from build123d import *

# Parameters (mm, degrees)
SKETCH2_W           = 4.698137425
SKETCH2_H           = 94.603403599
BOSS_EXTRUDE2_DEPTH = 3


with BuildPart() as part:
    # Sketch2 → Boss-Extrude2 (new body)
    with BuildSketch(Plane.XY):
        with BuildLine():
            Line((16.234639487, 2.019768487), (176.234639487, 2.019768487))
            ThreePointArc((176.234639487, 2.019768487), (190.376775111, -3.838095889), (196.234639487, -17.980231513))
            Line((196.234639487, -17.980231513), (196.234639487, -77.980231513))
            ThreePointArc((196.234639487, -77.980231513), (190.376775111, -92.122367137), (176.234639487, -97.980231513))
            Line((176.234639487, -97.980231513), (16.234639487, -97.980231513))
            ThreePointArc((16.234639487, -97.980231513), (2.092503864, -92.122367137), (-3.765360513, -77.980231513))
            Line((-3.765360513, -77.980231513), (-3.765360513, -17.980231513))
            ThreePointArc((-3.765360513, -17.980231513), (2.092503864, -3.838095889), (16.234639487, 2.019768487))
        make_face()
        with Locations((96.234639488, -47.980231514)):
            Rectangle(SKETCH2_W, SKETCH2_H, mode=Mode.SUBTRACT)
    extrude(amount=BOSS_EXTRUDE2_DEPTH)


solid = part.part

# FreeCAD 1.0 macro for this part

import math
import FreeCAD as App
import Part
import Sketcher

V = App.Vector
Q = App.Units.Quantity

doc = App.newDocument("Part")
body = doc.addObject("PartDesign::Body", "Body")

sketch1 = body.newObject("Sketcher::SketchObject", "Sketch")
sketch1.AttachmentSupport = (doc.getObject("XY_Plane"), [""])
sketch1.MapMode = "FlatFace"
sketch1.addGeometry([
    Part.LineSegment(V(176.234639, 2.019768, 0), V(16.234639, 2.019768, 0)),
    Part.ArcOfCircle(Part.Circle(V(16.234639, -17.980232, 0), V(0, 0, 1), 20), math.radians(90), math.radians(180)),
    Part.LineSegment(V(-3.765361, -17.980232, 0), V(-3.765361, -77.980232, 0)),
    Part.ArcOfCircle(Part.Circle(V(16.234639, -77.980232, 0), V(0, 0, 1), 20), math.radians(-180), math.radians(-90)),
    Part.LineSegment(V(16.234639, -97.980232, 0), V(176.234639, -97.980232, 0)),
    Part.ArcOfCircle(Part.Circle(V(176.234639, -77.980232, 0), V(0, 0, 1), 20), math.radians(-90), math.radians(0)),
    Part.LineSegment(V(196.234639, -77.980232, 0), V(196.234639, -17.980232, 0)),
    Part.ArcOfCircle(Part.Circle(V(176.234639, -17.980232, 0), V(0, 0, 1), 20), math.radians(0), math.radians(90)),
    Part.LineSegment(V(93.885571, -95.281933, 0), V(93.885571, -0.67853, 0)),
    Part.LineSegment(V(93.885571, -0.67853, 0), V(98.583708, -0.67853, 0)),
    Part.LineSegment(V(98.583708, -0.67853, 0), V(98.583708, -95.281933, 0)),
    Part.LineSegment(V(98.583708, -95.281933, 0), V(93.885571, -95.281933, 0)),
], False)
sketch1.addConstraint([
    Sketcher.Constraint("Tangent", 0, 2, 1, 1),
    Sketcher.Constraint("Tangent", 1, 2, 2, 1),
    Sketcher.Constraint("Tangent", 2, 2, 3, 1),
    Sketcher.Constraint("Tangent", 3, 2, 4, 1),
    Sketcher.Constraint("Tangent", 4, 2, 5, 1),
    Sketcher.Constraint("Tangent", 5, 2, 6, 1),
    Sketcher.Constraint("Tangent", 6, 2, 7, 1),
    Sketcher.Constraint("Tangent", 7, 2, 0, 1),
    Sketcher.Constraint("Coincident", 8, 2, 9, 1),
    Sketcher.Constraint("Coincident", 9, 2, 10, 1),
    Sketcher.Constraint("Coincident", 10, 2, 11, 1),
    Sketcher.Constraint("Coincident", 11, 2, 8, 1),
    Sketcher.Constraint("Horizontal", 0),
    Sketcher.Constraint("Vertical", 2),
    Sketcher.Constraint("Horizontal", 4),
    Sketcher.Constraint("Vertical", 6),
    Sketcher.Constraint("Vertical", 8),
    Sketcher.Constraint("Horizontal", 9),
    Sketcher.Constraint("Vertical", 10),
    Sketcher.Constraint("Horizontal", 11),
    Sketcher.Constraint("Equal", 1, 3),
    Sketcher.Constraint("Equal", 3, 5),
    Sketcher.Constraint("Equal", 5, 7),
    Sketcher.Constraint("Radius", 1, Q("20 mm")),
    Sketcher.Constraint("DistanceX", 0, 2, 0, 1, Q("160 mm")),
    Sketcher.Constraint("DistanceY", 2, 2, 2, 1, Q("60 mm")),
    Sketcher.Constraint("DistanceY", 8, 2, 0, 2, Q("2.698298 mm")),
    Sketcher.Constraint("DistanceY", 4, 2, 10, 2, Q("2.698298 mm")),
    Sketcher.Constraint("DistanceX", 9, 1, 9, 2, Q("4.698137 mm")),
    Sketcher.Constraint("DistanceX", -1, 1, 1, 3, Q("16.234639 mm")),
    Sketcher.Constraint("DistanceY", 1, 3, -1, 1, Q("17.980232 mm")),
    Sketcher.Constraint("DistanceX", -1, 1, 8, 2, Q("93.885571 mm")),
])
pad1 = body.newObject("PartDesign::Pad", "Pad")
pad1.Profile = sketch1
pad1.Length = 3

doc.recompute()
